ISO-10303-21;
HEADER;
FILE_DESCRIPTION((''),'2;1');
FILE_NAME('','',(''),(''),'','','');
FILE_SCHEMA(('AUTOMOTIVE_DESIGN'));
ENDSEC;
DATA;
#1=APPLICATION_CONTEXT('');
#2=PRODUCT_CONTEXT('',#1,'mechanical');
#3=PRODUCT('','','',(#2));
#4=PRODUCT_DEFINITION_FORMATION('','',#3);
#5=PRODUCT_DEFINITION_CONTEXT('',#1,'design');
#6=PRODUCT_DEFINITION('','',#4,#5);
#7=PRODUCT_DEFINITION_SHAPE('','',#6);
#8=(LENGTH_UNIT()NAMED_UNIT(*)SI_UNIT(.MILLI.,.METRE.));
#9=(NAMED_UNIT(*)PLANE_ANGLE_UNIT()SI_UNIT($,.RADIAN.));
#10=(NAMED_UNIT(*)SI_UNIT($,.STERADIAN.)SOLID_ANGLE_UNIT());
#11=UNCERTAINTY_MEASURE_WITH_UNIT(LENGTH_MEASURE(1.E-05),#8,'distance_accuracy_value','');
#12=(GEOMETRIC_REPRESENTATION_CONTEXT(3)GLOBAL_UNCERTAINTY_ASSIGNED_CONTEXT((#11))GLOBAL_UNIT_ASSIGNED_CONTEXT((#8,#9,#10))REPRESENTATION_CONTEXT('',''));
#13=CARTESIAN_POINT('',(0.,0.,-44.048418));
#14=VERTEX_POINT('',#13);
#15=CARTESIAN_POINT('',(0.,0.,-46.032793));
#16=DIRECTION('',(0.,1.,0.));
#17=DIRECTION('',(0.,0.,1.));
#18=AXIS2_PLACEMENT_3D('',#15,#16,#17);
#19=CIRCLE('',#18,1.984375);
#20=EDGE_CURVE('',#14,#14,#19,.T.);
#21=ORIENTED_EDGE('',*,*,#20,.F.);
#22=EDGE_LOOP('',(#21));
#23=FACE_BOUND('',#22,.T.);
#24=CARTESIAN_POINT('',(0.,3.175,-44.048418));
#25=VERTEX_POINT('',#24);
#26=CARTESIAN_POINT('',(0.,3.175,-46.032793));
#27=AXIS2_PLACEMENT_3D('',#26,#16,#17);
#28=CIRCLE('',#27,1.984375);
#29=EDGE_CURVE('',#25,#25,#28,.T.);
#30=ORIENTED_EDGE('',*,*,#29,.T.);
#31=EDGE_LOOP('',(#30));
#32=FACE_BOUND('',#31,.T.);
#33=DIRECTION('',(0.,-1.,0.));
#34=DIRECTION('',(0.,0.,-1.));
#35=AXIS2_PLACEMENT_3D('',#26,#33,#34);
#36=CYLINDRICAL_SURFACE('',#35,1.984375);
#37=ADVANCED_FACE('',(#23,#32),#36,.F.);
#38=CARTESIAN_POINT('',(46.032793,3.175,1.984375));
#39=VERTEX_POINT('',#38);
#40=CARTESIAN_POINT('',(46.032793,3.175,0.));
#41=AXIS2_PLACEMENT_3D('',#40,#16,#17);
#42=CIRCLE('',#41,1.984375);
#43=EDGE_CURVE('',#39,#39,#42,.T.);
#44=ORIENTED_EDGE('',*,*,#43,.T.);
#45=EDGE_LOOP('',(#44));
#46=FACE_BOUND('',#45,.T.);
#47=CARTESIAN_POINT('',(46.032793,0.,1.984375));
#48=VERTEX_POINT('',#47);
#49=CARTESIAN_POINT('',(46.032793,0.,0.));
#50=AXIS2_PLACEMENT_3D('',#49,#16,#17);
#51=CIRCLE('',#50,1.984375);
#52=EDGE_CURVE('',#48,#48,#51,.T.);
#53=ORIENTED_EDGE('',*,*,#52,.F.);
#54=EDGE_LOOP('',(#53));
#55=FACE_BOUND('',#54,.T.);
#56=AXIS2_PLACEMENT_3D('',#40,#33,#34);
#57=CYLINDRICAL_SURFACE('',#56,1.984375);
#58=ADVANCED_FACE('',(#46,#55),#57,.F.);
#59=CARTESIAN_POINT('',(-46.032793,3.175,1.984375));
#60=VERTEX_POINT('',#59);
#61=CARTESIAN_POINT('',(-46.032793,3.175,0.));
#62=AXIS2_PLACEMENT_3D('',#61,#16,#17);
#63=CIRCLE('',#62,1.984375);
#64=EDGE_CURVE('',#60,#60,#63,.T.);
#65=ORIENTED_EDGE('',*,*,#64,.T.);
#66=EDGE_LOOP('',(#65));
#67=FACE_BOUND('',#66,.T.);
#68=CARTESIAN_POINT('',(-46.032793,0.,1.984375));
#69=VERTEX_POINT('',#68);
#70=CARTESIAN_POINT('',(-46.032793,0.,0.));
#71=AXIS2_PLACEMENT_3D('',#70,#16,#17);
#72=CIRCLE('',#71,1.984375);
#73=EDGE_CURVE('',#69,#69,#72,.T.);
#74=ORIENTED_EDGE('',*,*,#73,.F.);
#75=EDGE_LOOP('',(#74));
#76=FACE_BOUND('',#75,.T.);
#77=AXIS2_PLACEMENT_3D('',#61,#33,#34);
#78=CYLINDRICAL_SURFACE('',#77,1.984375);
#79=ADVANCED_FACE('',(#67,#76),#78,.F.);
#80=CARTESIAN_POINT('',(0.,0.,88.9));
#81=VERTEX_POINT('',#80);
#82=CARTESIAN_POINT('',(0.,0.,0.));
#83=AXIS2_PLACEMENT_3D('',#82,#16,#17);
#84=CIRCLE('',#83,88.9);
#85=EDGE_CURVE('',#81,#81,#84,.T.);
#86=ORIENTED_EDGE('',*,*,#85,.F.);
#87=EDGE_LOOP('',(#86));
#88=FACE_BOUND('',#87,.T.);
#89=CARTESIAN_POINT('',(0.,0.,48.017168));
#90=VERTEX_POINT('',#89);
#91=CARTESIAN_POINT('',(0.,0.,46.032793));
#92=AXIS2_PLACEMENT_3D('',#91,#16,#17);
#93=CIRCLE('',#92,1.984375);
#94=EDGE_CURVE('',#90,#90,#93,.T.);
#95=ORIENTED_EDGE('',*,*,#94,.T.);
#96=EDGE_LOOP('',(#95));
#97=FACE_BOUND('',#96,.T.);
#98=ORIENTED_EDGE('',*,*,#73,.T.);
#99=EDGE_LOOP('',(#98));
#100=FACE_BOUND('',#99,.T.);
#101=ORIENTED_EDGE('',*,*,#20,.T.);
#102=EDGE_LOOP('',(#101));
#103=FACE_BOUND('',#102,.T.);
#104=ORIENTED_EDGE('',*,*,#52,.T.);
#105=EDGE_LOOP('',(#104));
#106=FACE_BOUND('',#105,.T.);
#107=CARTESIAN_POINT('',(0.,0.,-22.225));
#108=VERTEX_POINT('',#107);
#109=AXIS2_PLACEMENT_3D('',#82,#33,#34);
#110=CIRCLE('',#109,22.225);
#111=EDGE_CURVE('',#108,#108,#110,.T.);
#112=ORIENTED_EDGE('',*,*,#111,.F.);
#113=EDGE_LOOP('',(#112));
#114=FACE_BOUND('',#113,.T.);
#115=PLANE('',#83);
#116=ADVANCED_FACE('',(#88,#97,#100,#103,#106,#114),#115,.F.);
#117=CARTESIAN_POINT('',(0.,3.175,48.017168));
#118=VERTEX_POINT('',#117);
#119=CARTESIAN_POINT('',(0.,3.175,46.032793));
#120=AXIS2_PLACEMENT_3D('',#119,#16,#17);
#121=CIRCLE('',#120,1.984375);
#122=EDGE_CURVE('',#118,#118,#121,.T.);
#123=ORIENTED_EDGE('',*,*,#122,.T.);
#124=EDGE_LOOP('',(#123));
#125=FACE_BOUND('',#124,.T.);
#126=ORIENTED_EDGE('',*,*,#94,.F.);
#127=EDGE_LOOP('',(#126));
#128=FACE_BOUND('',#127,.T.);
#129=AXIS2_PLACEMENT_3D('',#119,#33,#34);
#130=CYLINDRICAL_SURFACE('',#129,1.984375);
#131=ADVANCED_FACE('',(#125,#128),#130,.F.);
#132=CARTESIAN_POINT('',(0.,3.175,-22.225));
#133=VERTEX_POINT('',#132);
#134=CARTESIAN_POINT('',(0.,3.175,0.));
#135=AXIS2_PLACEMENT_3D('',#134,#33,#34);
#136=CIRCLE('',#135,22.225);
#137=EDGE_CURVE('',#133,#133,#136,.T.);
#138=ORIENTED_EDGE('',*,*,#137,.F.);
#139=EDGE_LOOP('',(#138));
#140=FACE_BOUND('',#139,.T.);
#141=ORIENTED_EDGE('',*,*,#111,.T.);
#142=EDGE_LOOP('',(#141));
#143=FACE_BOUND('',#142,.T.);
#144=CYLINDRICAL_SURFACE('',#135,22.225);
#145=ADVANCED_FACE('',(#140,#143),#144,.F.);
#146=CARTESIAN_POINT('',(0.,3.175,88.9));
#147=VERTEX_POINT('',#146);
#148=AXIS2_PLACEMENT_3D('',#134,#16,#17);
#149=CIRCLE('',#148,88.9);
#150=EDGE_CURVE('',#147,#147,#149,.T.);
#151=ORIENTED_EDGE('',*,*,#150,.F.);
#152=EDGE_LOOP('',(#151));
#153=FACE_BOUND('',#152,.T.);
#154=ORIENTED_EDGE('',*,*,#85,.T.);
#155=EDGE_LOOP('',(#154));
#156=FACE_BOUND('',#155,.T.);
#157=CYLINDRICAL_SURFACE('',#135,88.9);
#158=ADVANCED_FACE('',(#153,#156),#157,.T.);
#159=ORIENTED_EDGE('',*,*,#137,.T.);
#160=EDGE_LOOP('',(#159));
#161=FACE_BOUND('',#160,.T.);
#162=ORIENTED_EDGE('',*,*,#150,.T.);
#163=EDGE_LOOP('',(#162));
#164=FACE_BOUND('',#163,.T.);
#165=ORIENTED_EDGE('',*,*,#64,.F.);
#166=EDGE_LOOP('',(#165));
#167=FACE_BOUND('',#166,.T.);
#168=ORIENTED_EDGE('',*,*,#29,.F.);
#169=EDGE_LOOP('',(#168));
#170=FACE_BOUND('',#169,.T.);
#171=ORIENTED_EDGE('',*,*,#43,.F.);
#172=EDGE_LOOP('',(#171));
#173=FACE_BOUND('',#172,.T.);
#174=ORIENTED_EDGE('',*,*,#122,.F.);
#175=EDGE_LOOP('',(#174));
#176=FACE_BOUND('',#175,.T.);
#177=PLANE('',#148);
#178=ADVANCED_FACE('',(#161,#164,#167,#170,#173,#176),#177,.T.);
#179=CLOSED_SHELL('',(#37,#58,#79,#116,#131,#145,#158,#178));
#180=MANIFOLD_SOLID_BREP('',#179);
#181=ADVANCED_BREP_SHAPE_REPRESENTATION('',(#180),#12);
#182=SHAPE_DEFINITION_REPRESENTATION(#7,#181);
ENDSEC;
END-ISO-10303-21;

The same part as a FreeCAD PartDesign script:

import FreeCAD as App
import Part
import Sketcher
from FreeCAD import Vector
Q = App.Units.Quantity

doc = App.newDocument("Part")
params = doc.addObject("Spreadsheet::Sheet", "Params")
for row, (alias, value) in enumerate([
    ("sketch1_diameter", "7 in"),
    ("sketch1_diameter2", "0.15625 in"),
    ("pad1_length", "0.125 in"),
    ("sketch2_diameter", "1.75 in"),
], start=1):
    params.set(f"A{row}", alias)
    params.set(f"B{row}", "=" + value)
    params.setAlias(f"B{row}", alias)

body = doc.addObject("PartDesign::Body", "Body")

sketch1 = body.newObject("Sketcher::SketchObject", "Sketch")
sketch1.AttachmentSupport = (doc.getObject("XZ_Plane"), [""])
sketch1.MapMode = "FlatFace"
sketch1.addGeometry(Part.Circle(Vector(0, 0, 0), Vector(0, 0, 1), 88.9), False)
sketch1.addGeometry(Part.Circle(Vector(0, -46, 0), Vector(0, 0, 1), 2), False)
sketch1.addGeometry(Part.Circle(Vector(-46, 0, 0), Vector(0, 0, 1), 2), False)
sketch1.addGeometry(Part.Circle(Vector(46, 0, 0), Vector(0, 0, 1), 2), False)
sketch1.addGeometry(Part.Circle(Vector(0, 46, 0), Vector(0, 0, 1), 2), False)
sketch1.addConstraint(Sketcher.Constraint("Coincident", 0, 3, -1, 1))
sketch1.addConstraint(Sketcher.Constraint("Equal", 1, 2))
sketch1.addConstraint(Sketcher.Constraint("Equal", 2, 3))
sketch1.addConstraint(Sketcher.Constraint("Equal", 3, 4))
sketch1.addConstraint(Sketcher.Constraint("Symmetric", 2, 3, 3, 3, -1, 1))
sketch1.addConstraint(Sketcher.Constraint("Symmetric", 1, 3, 4, 3, -1, 1))
sketch1.addConstraint(Sketcher.Constraint("PointOnObject", 1, 3, -2))
sketch1.addConstraint(Sketcher.Constraint("PointOnObject", 2, 3, -1))
sketch1.addConstraint(Sketcher.Constraint("Diameter", 0, Q("7 in")))
sketch1.addConstraint(Sketcher.Constraint("Diameter", 1, Q("0.15625 in")))
sketch1.addConstraint(Sketcher.Constraint("DistanceY", 1, 3, -1, 1, Q("46.032793 mm")))
sketch1.addConstraint(Sketcher.Constraint("DistanceX", 2, 3, -1, 1, Q("46.032793 mm")))
sketch1.setExpression("Constraints[8]", "Params.sketch1_diameter")
sketch1.setExpression("Constraints[9]", "Params.sketch1_diameter2")
pad1 = body.newObject("PartDesign::Pad", "Pad")
pad1.Profile = sketch1
pad1.setExpression("Length", "Params.pad1_length")
pad1.Reversed = True

sketch2 = body.newObject("Sketcher::SketchObject", "Sketch001")
sketch2.AttachmentSupport = (doc.getObject("XZ_Plane"), [""])
sketch2.MapMode = "FlatFace"
sketch2.addGeometry(Part.Circle(Vector(0, 0, 0), Vector(0, 0, 1), 22), False)
sketch2.addConstraint(Sketcher.Constraint("Coincident", 0, 3, -1, 1))
sketch2.addConstraint(Sketcher.Constraint("Diameter", 0, Q("1.75 in")))
sketch2.setExpression("Constraints[1]", "Params.sketch2_diameter")
pocket1 = body.newObject("PartDesign::Pocket", "Pocket")
pocket1.Profile = sketch2
pocket1.Type = "ThroughAll"

doc.recompute()
